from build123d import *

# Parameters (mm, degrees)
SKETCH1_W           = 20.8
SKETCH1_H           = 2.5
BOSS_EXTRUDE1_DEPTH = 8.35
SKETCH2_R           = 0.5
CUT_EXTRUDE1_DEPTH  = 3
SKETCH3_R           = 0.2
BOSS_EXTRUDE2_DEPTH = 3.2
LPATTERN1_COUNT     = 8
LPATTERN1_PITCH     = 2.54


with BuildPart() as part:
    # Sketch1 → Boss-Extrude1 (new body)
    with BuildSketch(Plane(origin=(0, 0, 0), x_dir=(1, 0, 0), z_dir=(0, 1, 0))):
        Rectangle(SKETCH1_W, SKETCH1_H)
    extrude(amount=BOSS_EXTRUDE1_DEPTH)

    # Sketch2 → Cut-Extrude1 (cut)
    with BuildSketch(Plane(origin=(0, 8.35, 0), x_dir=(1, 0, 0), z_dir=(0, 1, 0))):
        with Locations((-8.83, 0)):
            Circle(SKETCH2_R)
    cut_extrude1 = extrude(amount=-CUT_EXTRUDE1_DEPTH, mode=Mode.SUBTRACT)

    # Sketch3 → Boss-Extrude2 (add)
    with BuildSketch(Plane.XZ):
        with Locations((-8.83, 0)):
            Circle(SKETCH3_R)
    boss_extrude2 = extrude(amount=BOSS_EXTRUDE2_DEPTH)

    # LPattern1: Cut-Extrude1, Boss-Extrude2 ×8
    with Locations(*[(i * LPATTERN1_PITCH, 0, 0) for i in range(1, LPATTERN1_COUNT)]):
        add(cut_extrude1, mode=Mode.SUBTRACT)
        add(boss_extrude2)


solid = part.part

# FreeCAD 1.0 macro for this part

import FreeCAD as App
import Part
import Sketcher
from FreeCAD import Vector
Q = App.Units.Quantity


def add_polygon(sketch, points):
    """Adds a closed chain of lines whose ends are joined by coincident constraints."""
    first, n = sketch.GeometryCount, len(points)
    for a, b in zip(points, points[1:] + points[:1]):
        sketch.addGeometry(Part.LineSegment(App.Vector(*a, 0), App.Vector(*b, 0)), False)
    for i in range(n):
        sketch.addConstraint(Sketcher.Constraint("Coincident", first + i, 2, first + (i + 1) % n, 1))

doc = App.newDocument("Part")
body = doc.addObject("PartDesign::Body", "Body")

# Sketch on XZ plane
sketch1 = body.newObject("Sketcher::SketchObject", "Sketch")
sketch1.AttachmentSupport = (doc.getObject("XZ_Plane"), [""])
sketch1.MapMode = "FlatFace"
add_polygon(sketch1, [(-10.4, -1.25), (-10.4, 1.25), (10.4, 1.25), (10.4, -1.25)])  # lines 0-3
sketch1.addConstraint([
    Sketcher.Constraint("Vertical", 0),
    Sketcher.Constraint("Horizontal", 1),
    Sketcher.Constraint("Vertical", 2),
    Sketcher.Constraint("Horizontal", 3),
    Sketcher.Constraint("Symmetric", 0, 2, 2, 2, -1, 1),
    Sketcher.Constraint("DistanceX", 1, 1, 1, 2, Q("20.8 mm")),
    Sketcher.Constraint("DistanceY", 0, 1, 0, 2, Q("2.5 mm")),
])
pad1 = body.newObject("PartDesign::Pad", "Pad")
pad1.Profile = sketch1
pad1.Length = 8.35
pad1.Reversed = True

# Sketch on XZ plane
sketch2 = body.newObject("Sketcher::SketchObject", "Sketch001")
sketch2.AttachmentSupport = (doc.getObject("XZ_Plane"), [""])
sketch2.MapMode = "FlatFace"
sketch2.AttachmentOffset = App.Placement(Vector(0, 0, -8.35), App.Rotation())
sketch2.addGeometry(Part.Circle(Vector(-8.83, 0, 0), Vector(0, 0, 1), 0.5), False)
sketch2.addConstraint([
    Sketcher.Constraint("PointOnObject", 0, 3, -1),
    Sketcher.Constraint("Diameter", 0, Q("1 mm")),
    Sketcher.Constraint("DistanceX", 0, 3, -1, 1, Q("8.83 mm")),
])
pocket1 = body.newObject("PartDesign::Pocket", "Pocket")
pocket1.Profile = sketch2
pocket1.Length = 3
pocket1.Reversed = True

# Sketch on XZ plane
sketch3 = body.newObject("Sketcher::SketchObject", "Sketch002")
sketch3.AttachmentSupport = (doc.getObject("XZ_Plane"), [""])
sketch3.MapMode = "FlatFace"
sketch3.addGeometry(Part.Circle(Vector(-8.83, 0, 0), Vector(0, 0, 1), 0.2), False)
sketch3.addConstraint([
    Sketcher.Constraint("PointOnObject", 0, 3, -1),
    Sketcher.Constraint("Diameter", 0, Q("0.4 mm")),
    Sketcher.Constraint("DistanceX", 0, 3, -1, 1, Q("8.83 mm")),
])
pad2 = body.newObject("PartDesign::Pad", "Pad001")
pad2.Profile = sketch3
pad2.Length = 3.2
doc.recompute()

linearpattern = body.newObject("PartDesign::LinearPattern", "LinearPattern")
linearpattern.Originals = [pocket1, pad2]
linearpattern.Direction = (doc.getObject("X_Axis"), [""])
linearpattern.Mode = "offset"
linearpattern.Offset = 2.54
linearpattern.Occurrences = 8
body.Tip = linearpattern

doc.recompute()
